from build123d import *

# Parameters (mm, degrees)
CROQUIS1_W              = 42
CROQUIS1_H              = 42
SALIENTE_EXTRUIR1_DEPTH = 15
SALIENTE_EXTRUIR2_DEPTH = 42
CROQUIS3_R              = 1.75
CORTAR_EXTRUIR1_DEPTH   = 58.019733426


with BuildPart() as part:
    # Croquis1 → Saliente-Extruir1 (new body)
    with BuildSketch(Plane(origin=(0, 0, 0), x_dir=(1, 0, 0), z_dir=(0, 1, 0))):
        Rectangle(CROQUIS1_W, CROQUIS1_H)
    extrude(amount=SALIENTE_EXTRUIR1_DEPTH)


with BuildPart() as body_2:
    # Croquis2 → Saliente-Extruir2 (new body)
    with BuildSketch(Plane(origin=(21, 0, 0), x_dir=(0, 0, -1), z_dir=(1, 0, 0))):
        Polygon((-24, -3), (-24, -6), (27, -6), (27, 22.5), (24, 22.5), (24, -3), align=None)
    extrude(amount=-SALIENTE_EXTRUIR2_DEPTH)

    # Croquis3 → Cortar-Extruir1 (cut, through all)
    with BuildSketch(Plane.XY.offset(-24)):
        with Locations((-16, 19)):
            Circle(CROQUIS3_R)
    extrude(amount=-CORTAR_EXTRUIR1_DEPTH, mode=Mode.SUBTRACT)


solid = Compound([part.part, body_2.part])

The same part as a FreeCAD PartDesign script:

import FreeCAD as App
import Part
import Sketcher
Q = App.Units.Quantity

doc = App.newDocument("Part")
params = doc.addObject("Spreadsheet::Sheet", "Params")
for row, (alias, value) in enumerate([
    ("sketch1_width", "42 mm"),
    ("pad1_length", "15 mm"),
    ("sketch2_width", "3 mm"),
    ("sketch2_height", "51 mm"),
    ("sketch2_width2", "28.5 mm"),
    ("pad2_length", "42 mm"),
    ("sketch3_diameter", "3.5 mm"),
], start=1):
    params.set(f"A{row}", alias)
    params.set(f"B{row}", "=" + value)
    params.setAlias(f"B{row}", alias)

body = doc.addObject("PartDesign::Body", "Body")

sketch1 = body.newObject("Sketcher::SketchObject", "Sketch")
sketch1.AttachmentSupport = (doc.getObject("XZ_Plane"), [""])
sketch1.MapMode = "FlatFace"
sketch1.addGeometry([
    Part.LineSegment(App.Vector(-21, -21, 0), App.Vector(-21, 21, 0)),
    Part.LineSegment(App.Vector(-21, 21, 0), App.Vector(21, 21, 0)),
    Part.LineSegment(App.Vector(21, 21, 0), App.Vector(21, -21, 0)),
    Part.LineSegment(App.Vector(21, -21, 0), App.Vector(-21, -21, 0)),
], False)
sketch1.addConstraint([
    Sketcher.Constraint("Coincident", 0, 2, 1, 1),
    Sketcher.Constraint("Coincident", 1, 2, 2, 1),
    Sketcher.Constraint("Coincident", 2, 2, 3, 1),
    Sketcher.Constraint("Coincident", 3, 2, 0, 1),
    Sketcher.Constraint("Vertical", 0),
    Sketcher.Constraint("Horizontal", 1),
    Sketcher.Constraint("Vertical", 2),
    Sketcher.Constraint("Horizontal", 3),
    Sketcher.Constraint("Symmetric", 0, 2, 2, 2, -1, 1),
    Sketcher.Constraint("Equal", 3, 0),
    Sketcher.Constraint("DistanceX", 1, 1, 1, 2, Q("42 mm")),
])
sketch1.setExpression("Constraints[10]", "Params.sketch1_width")
pad1 = body.newObject("PartDesign::Pad", "Pad")
pad1.Profile = sketch1
pad1.setExpression("Length", "Params.pad1_length")
pad1.Reversed = True
body2 = doc.addObject("PartDesign::Body", "Body001")

sketch2 = body2.newObject("Sketcher::SketchObject", "Sketch001")
sketch2.AttachmentSupport = (doc.getObject("YZ_Plane001"), [""])
sketch2.MapMode = "FlatFace"
sketch2.AttachmentOffset = App.Placement(App.Vector(0, 0, 21), App.Rotation())
sketch2.addGeometry([
    Part.LineSegment(App.Vector(-3, 24, 0), App.Vector(-6, 24, 0)),
    Part.LineSegment(App.Vector(-6, 24, 0), App.Vector(-6, -27, 0)),
    Part.LineSegment(App.Vector(-6, -27, 0), App.Vector(22.5, -27, 0)),
    Part.LineSegment(App.Vector(22.5, -27, 0), App.Vector(22.5, -24, 0)),
    Part.LineSegment(App.Vector(22.5, -24, 0), App.Vector(-3, -24, 0)),
    Part.LineSegment(App.Vector(-3, -24, 0), App.Vector(-3, 24, 0)),
], False)
sketch2.addConstraint([
    Sketcher.Constraint("Coincident", 0, 2, 1, 1),
    Sketcher.Constraint("Coincident", 1, 2, 2, 1),
    Sketcher.Constraint("Coincident", 2, 2, 3, 1),
    Sketcher.Constraint("Coincident", 3, 2, 4, 1),
    Sketcher.Constraint("Coincident", 4, 2, 5, 1),
    Sketcher.Constraint("Coincident", 5, 2, 0, 1),
    Sketcher.Constraint("Horizontal", 0),
    Sketcher.Constraint("Vertical", 1),
    Sketcher.Constraint("Horizontal", 2),
    Sketcher.Constraint("Vertical", 3),
    Sketcher.Constraint("Horizontal", 4),
    Sketcher.Constraint("Vertical", 5),
    Sketcher.Constraint("Equal", 0, 3),
    Sketcher.Constraint("DistanceX", 0, 2, 0, 1, Q("3 mm")),
    Sketcher.Constraint("DistanceY", 1, 2, 1, 1, Q("51 mm")),
    Sketcher.Constraint("DistanceX", 2, 1, 2, 2, Q("28.5 mm")),
    Sketcher.Constraint("DistanceX", 0, 2, -1, 1, Q("6 mm")),
    Sketcher.Constraint("DistanceY", -1, 1, 0, 2, Q("24 mm")),
])
sketch2.setExpression("Constraints[13]", "Params.sketch2_width")
sketch2.setExpression("Constraints[14]", "Params.sketch2_height")
sketch2.setExpression("Constraints[15]", "Params.sketch2_width2")
pad2 = body2.newObject("PartDesign::Pad", "Pad001")
pad2.Profile = sketch2
pad2.setExpression("Length", "Params.pad2_length")
pad2.Reversed = True

sketch3 = body2.newObject("Sketcher::SketchObject", "Sketch002")
sketch3.AttachmentSupport = (doc.getObject("XY_Plane001"), [""])
sketch3.MapMode = "FlatFace"
sketch3.AttachmentOffset = App.Placement(App.Vector(0, 0, -24), App.Rotation())
sketch3.addGeometry(Part.Circle(App.Vector(-16, 19, 0), App.Vector(0, 0, 1), 1.8), False)
sketch3.addConstraint([
    Sketcher.Constraint("Diameter", 0, Q("3.5 mm")),
    Sketcher.Constraint("DistanceX", 0, 3, -1, 1, Q("16 mm")),
    Sketcher.Constraint("DistanceY", -1, 1, 0, 3, Q("19 mm")),
])
sketch3.setExpression("Constraints[0]", "Params.sketch3_diameter")
pocket1 = body2.newObject("PartDesign::Pocket", "Pocket")
pocket1.Profile = sketch3
pocket1.Type = "ThroughAll"

doc.recompute()
